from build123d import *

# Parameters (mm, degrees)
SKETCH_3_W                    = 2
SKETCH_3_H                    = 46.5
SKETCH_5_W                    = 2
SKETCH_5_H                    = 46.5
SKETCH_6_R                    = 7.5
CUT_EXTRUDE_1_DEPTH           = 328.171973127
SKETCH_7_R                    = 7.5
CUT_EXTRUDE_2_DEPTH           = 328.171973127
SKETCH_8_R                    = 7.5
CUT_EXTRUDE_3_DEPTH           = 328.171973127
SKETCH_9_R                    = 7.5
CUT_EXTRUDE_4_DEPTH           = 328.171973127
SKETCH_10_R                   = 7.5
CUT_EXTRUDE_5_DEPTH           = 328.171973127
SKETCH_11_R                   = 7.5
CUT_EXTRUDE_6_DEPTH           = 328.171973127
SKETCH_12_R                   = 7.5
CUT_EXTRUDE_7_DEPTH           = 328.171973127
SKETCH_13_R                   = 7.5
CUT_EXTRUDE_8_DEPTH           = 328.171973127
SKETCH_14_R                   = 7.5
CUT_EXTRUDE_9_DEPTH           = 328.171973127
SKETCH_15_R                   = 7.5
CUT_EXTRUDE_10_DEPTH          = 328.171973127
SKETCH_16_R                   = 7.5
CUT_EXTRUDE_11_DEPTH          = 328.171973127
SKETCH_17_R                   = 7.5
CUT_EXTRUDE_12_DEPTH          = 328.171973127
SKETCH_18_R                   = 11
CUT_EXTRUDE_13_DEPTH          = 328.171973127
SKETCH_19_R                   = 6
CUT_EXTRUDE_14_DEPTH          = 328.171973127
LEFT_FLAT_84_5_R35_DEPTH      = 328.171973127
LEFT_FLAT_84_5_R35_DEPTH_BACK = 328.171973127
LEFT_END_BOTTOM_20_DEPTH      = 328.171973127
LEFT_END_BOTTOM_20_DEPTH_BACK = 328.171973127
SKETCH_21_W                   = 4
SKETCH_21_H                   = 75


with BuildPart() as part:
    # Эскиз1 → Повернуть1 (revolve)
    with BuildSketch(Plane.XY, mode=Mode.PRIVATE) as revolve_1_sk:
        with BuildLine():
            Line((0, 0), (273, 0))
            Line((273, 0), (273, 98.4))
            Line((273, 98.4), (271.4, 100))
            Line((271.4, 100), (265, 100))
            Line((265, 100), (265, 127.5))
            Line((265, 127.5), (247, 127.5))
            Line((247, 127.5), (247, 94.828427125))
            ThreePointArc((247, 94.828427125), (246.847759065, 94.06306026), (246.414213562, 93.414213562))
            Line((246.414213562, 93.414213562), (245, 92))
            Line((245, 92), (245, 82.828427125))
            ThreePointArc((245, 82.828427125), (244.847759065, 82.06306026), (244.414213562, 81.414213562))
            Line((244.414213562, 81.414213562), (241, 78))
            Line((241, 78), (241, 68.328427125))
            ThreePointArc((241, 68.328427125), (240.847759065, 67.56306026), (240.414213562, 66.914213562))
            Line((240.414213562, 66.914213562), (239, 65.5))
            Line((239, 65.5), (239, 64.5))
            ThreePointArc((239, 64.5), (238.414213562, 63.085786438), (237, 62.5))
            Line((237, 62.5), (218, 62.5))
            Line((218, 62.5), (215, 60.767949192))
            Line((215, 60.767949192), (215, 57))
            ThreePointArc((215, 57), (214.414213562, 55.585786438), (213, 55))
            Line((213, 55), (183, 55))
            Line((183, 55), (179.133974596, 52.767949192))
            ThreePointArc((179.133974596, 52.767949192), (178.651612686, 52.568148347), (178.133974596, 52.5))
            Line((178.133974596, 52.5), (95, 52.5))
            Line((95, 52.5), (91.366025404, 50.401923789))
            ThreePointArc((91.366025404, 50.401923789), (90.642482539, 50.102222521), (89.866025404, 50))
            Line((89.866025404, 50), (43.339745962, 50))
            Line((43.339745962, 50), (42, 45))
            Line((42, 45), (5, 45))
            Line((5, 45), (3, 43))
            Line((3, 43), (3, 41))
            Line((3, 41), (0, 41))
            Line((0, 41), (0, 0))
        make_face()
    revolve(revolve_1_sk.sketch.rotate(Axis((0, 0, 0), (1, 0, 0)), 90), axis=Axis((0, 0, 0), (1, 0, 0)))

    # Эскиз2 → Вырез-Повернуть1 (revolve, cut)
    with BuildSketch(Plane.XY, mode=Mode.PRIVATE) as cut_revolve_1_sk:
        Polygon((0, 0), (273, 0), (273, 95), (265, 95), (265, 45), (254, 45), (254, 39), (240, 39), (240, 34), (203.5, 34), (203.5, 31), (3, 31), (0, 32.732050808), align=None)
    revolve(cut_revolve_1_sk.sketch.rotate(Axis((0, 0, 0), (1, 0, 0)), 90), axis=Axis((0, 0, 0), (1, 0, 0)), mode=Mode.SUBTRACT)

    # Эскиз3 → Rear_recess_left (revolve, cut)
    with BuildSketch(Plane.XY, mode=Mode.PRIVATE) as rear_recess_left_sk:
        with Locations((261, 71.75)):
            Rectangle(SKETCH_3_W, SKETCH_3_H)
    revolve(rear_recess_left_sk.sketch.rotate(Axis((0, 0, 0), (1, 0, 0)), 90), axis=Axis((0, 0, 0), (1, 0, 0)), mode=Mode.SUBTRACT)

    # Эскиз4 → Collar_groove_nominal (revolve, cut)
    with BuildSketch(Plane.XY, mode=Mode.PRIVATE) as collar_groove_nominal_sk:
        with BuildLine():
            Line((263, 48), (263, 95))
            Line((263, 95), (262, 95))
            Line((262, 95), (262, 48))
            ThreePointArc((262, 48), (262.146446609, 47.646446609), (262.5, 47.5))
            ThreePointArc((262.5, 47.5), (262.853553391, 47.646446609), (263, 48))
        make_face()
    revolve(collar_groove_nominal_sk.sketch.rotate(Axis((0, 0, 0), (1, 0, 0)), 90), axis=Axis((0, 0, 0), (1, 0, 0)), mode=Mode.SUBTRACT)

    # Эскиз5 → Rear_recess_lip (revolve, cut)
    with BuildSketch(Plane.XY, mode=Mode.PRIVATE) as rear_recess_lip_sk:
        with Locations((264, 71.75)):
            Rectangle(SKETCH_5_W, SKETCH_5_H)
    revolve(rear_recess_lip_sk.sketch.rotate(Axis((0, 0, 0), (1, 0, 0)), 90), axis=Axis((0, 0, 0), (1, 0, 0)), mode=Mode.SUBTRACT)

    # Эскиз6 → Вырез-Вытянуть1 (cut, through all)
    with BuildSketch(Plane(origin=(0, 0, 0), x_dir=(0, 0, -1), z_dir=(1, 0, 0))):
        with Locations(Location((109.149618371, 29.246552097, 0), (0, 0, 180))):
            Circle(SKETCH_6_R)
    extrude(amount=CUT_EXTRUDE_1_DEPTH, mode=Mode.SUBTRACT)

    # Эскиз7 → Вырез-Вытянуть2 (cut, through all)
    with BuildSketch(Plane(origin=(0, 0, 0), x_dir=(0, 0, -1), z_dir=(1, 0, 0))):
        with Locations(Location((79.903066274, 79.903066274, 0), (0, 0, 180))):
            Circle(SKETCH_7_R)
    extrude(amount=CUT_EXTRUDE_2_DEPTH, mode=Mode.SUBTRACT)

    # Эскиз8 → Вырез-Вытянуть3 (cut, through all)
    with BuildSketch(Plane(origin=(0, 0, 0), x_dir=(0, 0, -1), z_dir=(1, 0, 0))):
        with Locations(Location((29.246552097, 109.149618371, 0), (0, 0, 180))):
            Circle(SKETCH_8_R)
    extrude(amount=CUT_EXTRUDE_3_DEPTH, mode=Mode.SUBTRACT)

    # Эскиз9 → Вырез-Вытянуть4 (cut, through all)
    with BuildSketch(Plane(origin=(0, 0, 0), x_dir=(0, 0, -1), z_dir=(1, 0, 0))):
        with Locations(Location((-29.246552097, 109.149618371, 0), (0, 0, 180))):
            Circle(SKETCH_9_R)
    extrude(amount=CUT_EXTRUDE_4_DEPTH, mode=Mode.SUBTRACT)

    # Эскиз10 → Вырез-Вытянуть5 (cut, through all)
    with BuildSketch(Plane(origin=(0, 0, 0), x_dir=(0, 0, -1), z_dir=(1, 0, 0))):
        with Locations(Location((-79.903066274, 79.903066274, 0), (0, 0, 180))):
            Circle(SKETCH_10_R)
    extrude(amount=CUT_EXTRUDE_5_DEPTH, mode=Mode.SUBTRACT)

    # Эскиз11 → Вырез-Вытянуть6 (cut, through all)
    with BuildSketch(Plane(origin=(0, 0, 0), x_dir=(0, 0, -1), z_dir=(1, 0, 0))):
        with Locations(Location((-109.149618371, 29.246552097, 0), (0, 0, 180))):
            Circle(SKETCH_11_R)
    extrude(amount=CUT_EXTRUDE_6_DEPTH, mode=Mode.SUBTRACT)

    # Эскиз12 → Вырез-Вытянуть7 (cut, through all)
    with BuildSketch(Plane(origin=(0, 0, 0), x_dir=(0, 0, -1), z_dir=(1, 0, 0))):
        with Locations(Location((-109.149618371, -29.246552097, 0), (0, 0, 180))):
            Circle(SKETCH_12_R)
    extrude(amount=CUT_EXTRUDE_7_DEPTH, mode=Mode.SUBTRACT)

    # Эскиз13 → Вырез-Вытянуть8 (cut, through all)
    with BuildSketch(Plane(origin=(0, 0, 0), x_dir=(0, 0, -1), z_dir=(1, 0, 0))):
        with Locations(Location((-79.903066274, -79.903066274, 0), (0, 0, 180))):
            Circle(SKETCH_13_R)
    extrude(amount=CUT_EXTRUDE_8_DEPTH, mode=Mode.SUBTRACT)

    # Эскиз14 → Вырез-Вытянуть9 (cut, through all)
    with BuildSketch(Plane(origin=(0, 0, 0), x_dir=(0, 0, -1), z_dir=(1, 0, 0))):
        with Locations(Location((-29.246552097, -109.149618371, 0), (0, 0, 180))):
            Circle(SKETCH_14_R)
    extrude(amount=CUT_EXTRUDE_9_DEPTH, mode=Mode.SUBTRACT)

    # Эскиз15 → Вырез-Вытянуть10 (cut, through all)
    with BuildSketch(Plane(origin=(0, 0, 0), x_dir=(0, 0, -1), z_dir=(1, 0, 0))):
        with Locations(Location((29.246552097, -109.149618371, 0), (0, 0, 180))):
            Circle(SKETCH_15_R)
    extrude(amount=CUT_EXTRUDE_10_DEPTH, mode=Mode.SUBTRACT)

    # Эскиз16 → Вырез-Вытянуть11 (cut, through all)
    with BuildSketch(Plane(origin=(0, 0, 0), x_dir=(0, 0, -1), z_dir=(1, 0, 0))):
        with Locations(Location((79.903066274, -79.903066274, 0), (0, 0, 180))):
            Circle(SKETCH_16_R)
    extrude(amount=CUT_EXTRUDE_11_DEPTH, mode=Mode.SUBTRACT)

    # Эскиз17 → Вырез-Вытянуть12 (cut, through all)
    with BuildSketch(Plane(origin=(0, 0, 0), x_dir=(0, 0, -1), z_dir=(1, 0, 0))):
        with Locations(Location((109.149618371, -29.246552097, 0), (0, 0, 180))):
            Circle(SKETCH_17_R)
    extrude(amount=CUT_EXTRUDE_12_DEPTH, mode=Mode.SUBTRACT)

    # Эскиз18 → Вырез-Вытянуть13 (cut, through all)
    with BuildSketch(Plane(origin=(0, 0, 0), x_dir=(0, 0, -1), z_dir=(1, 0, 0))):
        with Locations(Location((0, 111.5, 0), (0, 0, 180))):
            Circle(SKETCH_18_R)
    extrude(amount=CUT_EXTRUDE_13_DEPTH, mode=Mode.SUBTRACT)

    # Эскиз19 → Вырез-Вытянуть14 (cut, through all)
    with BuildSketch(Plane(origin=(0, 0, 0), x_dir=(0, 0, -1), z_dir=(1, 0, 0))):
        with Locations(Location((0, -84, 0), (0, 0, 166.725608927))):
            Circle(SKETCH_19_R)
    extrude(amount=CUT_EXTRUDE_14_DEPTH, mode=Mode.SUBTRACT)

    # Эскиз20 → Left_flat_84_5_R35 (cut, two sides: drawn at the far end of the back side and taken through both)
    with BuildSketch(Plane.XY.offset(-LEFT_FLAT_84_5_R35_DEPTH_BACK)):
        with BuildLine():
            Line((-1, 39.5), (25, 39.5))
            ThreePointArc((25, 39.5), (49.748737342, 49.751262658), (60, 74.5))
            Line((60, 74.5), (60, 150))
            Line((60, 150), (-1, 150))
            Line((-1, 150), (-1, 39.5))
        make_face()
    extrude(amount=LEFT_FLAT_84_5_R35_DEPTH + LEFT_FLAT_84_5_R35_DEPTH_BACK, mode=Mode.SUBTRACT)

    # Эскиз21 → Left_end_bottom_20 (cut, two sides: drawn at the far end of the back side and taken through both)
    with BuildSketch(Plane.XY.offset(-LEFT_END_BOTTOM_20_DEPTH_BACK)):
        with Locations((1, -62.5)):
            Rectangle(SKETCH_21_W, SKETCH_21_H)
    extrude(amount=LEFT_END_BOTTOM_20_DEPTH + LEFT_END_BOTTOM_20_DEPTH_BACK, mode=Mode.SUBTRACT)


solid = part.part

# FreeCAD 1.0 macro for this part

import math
import FreeCAD as App
import Part
import Sketcher

V = App.Vector
Q = App.Units.Quantity

doc = App.newDocument("Part")
body = doc.addObject("PartDesign::Body", "Body")

# Sketch on XY plane
sketch1 = body.newObject("Sketcher::SketchObject", "Sketch")
sketch1.AttachmentSupport = (doc.getObject("XY_Plane"), [""])
sketch1.MapMode = "FlatFace"
sketch1.addGeometry([
    Part.LineSegment(V(0, 0, 0), V(273, 0, 0)),  # 0
    Part.LineSegment(V(273, 0, 0), V(273, 98.4, 0)),  # 1
    Part.LineSegment(V(273, 98.4, 0), V(271.4, 100, 0)),  # 2
    Part.LineSegment(V(271.4, 100, 0), V(265, 100, 0)),  # 3
    Part.LineSegment(V(265, 100, 0), V(265, 127.5, 0)),  # 4
    Part.LineSegment(V(265, 127.5, 0), V(247, 127.5, 0)),  # 5
    Part.LineSegment(V(247, 127.5, 0), V(247, 94.8, 0)),  # 6
    Part.ArcOfCircle(Part.Circle(V(245, 94.8, 0), V(0, 0, 1), 2), math.radians(-45), math.radians(0)),  # 7
    Part.LineSegment(V(246.4, 93.4, 0), V(245, 92, 0)),  # 8
    Part.LineSegment(V(245, 92, 0), V(245, 82.8, 0)),  # 9
    Part.ArcOfCircle(Part.Circle(V(243, 82.8, 0), V(0, 0, 1), 2), math.radians(-45), math.radians(0)),  # 10
    Part.LineSegment(V(244.4, 81.4, 0), V(241, 78, 0)),  # 11
    Part.LineSegment(V(241, 78, 0), V(241, 68.3, 0)),  # 12
    Part.ArcOfCircle(Part.Circle(V(239, 68.3, 0), V(0, 0, 1), 2), math.radians(-45), math.radians(0)),  # 13
    Part.LineSegment(V(240.4, 66.9, 0), V(239, 65.5, 0)),  # 14
    Part.LineSegment(V(239, 65.5, 0), V(239, 64.5, 0)),  # 15
    Part.ArcOfCircle(Part.Circle(V(237, 64.5, 0), V(0, 0, 1), 2), math.radians(-90), math.radians(0)),  # 16
    Part.LineSegment(V(237, 62.5, 0), V(218, 62.5, 0)),  # 17
    Part.LineSegment(V(218, 62.5, 0), V(215, 60.8, 0)),  # 18
    Part.LineSegment(V(215, 60.8, 0), V(215, 57, 0)),  # 19
    Part.ArcOfCircle(Part.Circle(V(213, 57, 0), V(0, 0, 1), 2), math.radians(-90), math.radians(0)),  # 20
    Part.LineSegment(V(213, 55, 0), V(183, 55, 0)),  # 21
    Part.LineSegment(V(183, 55, 0), V(179.1, 52.8, 0)),  # 22
    Part.ArcOfCircle(Part.Circle(V(178.1, 54.5, 0), V(0, 0, 1), 2), math.radians(-90), math.radians(-60)),  # 23
    Part.LineSegment(V(178.1, 52.5, 0), V(95, 52.5, 0)),  # 24
    Part.LineSegment(V(95, 52.5, 0), V(91.4, 50.4, 0)),  # 25
    Part.ArcOfCircle(Part.Circle(V(89.9, 53, 0), V(0, 0, 1), 3), math.radians(-90), math.radians(-60)),  # 26
    Part.LineSegment(V(89.9, 50, 0), V(43.3, 50, 0)),  # 27
    Part.LineSegment(V(43.3, 50, 0), V(42, 45, 0)),  # 28
    Part.LineSegment(V(42, 45, 0), V(5, 45, 0)),  # 29
    Part.LineSegment(V(5, 45, 0), V(3, 43, 0)),  # 30
    Part.LineSegment(V(3, 43, 0), V(3, 41, 0)),  # 31
    Part.LineSegment(V(3, 41, 0), V(0, 41, 0)),  # 32
    Part.LineSegment(V(0, 41, 0), V(0, 0, 0)),  # 33
], False)
sketch1.addConstraint([
    Sketcher.Constraint("Coincident", 0, 2, 1, 1),
    Sketcher.Constraint("Coincident", 1, 2, 2, 1),
    Sketcher.Constraint("Coincident", 2, 2, 3, 1),
    Sketcher.Constraint("Coincident", 3, 2, 4, 1),
    Sketcher.Constraint("Coincident", 4, 2, 5, 1),
    Sketcher.Constraint("Coincident", 5, 2, 6, 1),
    Sketcher.Constraint("Tangent", 6, 2, 7, 2),
    Sketcher.Constraint("Tangent", 7, 1, 8, 1),
    Sketcher.Constraint("Coincident", 8, 2, 9, 1),
    Sketcher.Constraint("Tangent", 9, 2, 10, 2),
    Sketcher.Constraint("Tangent", 10, 1, 11, 1),
    Sketcher.Constraint("Coincident", 11, 2, 12, 1),
    Sketcher.Constraint("Tangent", 12, 2, 13, 2),
    Sketcher.Constraint("Tangent", 13, 1, 14, 1),
    Sketcher.Constraint("Coincident", 14, 2, 15, 1),
    Sketcher.Constraint("Tangent", 15, 2, 16, 2),
    Sketcher.Constraint("Tangent", 16, 1, 17, 1),
    Sketcher.Constraint("Coincident", 17, 2, 18, 1),
    Sketcher.Constraint("Coincident", 18, 2, 19, 1),
    Sketcher.Constraint("Tangent", 19, 2, 20, 2),
    Sketcher.Constraint("Tangent", 20, 1, 21, 1),
    Sketcher.Constraint("Coincident", 21, 2, 22, 1),
    Sketcher.Constraint("Tangent", 22, 2, 23, 2),
    Sketcher.Constraint("Tangent", 23, 1, 24, 1),
    Sketcher.Constraint("Coincident", 24, 2, 25, 1),
    Sketcher.Constraint("Tangent", 25, 2, 26, 2),
    Sketcher.Constraint("Tangent", 26, 1, 27, 1),
    Sketcher.Constraint("Coincident", 27, 2, 28, 1),
    Sketcher.Constraint("Coincident", 28, 2, 29, 1),
    Sketcher.Constraint("Coincident", 29, 2, 30, 1),
    Sketcher.Constraint("Coincident", 30, 2, 31, 1),
    Sketcher.Constraint("Coincident", 31, 2, 32, 1),
    Sketcher.Constraint("Coincident", 32, 2, 33, 1),
    Sketcher.Constraint("Coincident", 33, 2, 0, 1),
    Sketcher.Constraint("Horizontal", 0),
    Sketcher.Constraint("Vertical", 1),
    Sketcher.Constraint("Horizontal", 3),
    Sketcher.Constraint("Vertical", 4),
    Sketcher.Constraint("Horizontal", 5),
    Sketcher.Constraint("Vertical", 6),
    Sketcher.Constraint("Vertical", 9),
    Sketcher.Constraint("Vertical", 12),
    Sketcher.Constraint("Vertical", 15),
    Sketcher.Constraint("Horizontal", 17),
    Sketcher.Constraint("Vertical", 19),
    Sketcher.Constraint("Horizontal", 21),
    Sketcher.Constraint("Horizontal", 24),
    Sketcher.Constraint("Horizontal", 27),
    Sketcher.Constraint("Horizontal", 29),
    Sketcher.Constraint("Vertical", 31),
    Sketcher.Constraint("Horizontal", 32),
    Sketcher.Constraint("Vertical", 33),
    Sketcher.Constraint("Coincident", 33, 2, -1, 1),
    Sketcher.Constraint("Equal", 7, 10),
    Sketcher.Constraint("Equal", 10, 13),
    Sketcher.Constraint("Equal", 13, 16),
    Sketcher.Constraint("Equal", 16, 20),
    Sketcher.Constraint("Equal", 20, 23),
    Sketcher.Constraint("Perpendicular", 2, 8),
    Sketcher.Constraint("Parallel", 8, 11),
    Sketcher.Constraint("Parallel", 11, 14),
    Sketcher.Constraint("Parallel", 18, 22),
    Sketcher.Constraint("Parallel", 22, 25),
    Sketcher.Constraint("Parallel", 14, 30),
    Sketcher.Constraint("Vertical", 7, 3, 8, 2),
    Sketcher.Constraint("Vertical", 13, 3, 14, 2),
    Sketcher.Constraint("Radius", 7, Q("2 mm")),
    Sketcher.Constraint("Radius", 26, Q("3 mm")),
    Sketcher.Constraint("DistanceX", 0, 1, 0, 2, Q("273 mm")),
    Sketcher.Constraint("DistanceX", 5, 2, 5, 1, Q("18 mm")),
    Sketcher.Constraint("DistanceX", 17, 2, 17, 1, Q("19 mm")),
    Sketcher.Constraint("DistanceX", 21, 2, 21, 1, Q("30 mm")),
    Sketcher.Constraint("DistanceX", 29, 2, 29, 1, Q("37 mm")),
    Sketcher.Constraint("DistanceX", 32, 2, 32, 1, Q("3 mm")),
    Sketcher.Constraint("DistanceY", 15, 2, 15, 1, Q("1 mm")),
    Sketcher.Constraint("DistanceY", 31, 2, 31, 1, Q("2 mm")),
    Sketcher.Constraint("DistanceY", 33, 2, 33, 1, Q("41 mm")),
    Sketcher.Constraint("Angle", 2, Q("135 deg")),
    Sketcher.Constraint("Angle", 18, Q("-150 deg")),
    Sketcher.Constraint("Angle", 28, Q("-105 deg")),
    Sketcher.Constraint("DistanceX", 3, 2, 3, 1, Q("6.4 mm")),
    Sketcher.Constraint("DistanceY", 1, 1, 1, 2, Q("98.4 mm")),
    Sketcher.Constraint("DistanceY", 4, 1, 4, 2, Q("27.5 mm")),
    Sketcher.Constraint("DistanceX", -1, 1, 7, 3, Q("245 mm")),
    Sketcher.Constraint("DistanceX", -1, 1, 13, 3, Q("239 mm")),
    Sketcher.Constraint("DistanceX", -1, 1, 20, 3, Q("213 mm")),
    Sketcher.Constraint("DistanceY", -1, 1, 20, 3, Q("57 mm")),
    Sketcher.Constraint("DistanceY", -1, 1, 26, 3, Q("53 mm")),
    Sketcher.Constraint("DistanceY", -1, 1, 8, 2, Q("92 mm")),
    Sketcher.Constraint("DistanceY", -1, 1, 11, 2, Q("78 mm")),
    Sketcher.Constraint("DistanceX", -1, 1, 24, 2, Q("95 mm")),
    Sketcher.Constraint("DistanceX", -1, 1, 28, 2, Q("42 mm")),
    Sketcher.Constraint("DistanceY", 23, 3, 16, 3, Q("10 mm")),
    Sketcher.Constraint("DistanceY", -1, 1, 16, 3, Q("64.5 mm")),
])
revolution = body.newObject("PartDesign::Revolution", "Revolution")
revolution.Profile = sketch1
revolution.ReferenceAxis = (sketch1, ["H_Axis"])
revolution.Angle = 360

# Sketch on XY plane
sketch2 = body.newObject("Sketcher::SketchObject", "Sketch001")
sketch2.AttachmentSupport = (doc.getObject("XY_Plane"), [""])
sketch2.MapMode = "FlatFace"
sketch2.addGeometry([
    Part.LineSegment(V(0, 0, 0), V(273, 0, 0)),  # 0
    Part.LineSegment(V(273, 0, 0), V(273, 95, 0)),  # 1
    Part.LineSegment(V(273, 95, 0), V(265, 95, 0)),  # 2
    Part.LineSegment(V(265, 95, 0), V(265, 45, 0)),  # 3
    Part.LineSegment(V(265, 45, 0), V(254, 45, 0)),  # 4
    Part.LineSegment(V(254, 45, 0), V(254, 39, 0)),  # 5
    Part.LineSegment(V(254, 39, 0), V(240, 39, 0)),  # 6
    Part.LineSegment(V(240, 39, 0), V(240, 34, 0)),  # 7
    Part.LineSegment(V(240, 34, 0), V(203.5, 34, 0)),  # 8
    Part.LineSegment(V(203.5, 34, 0), V(203.5, 31, 0)),  # 9
    Part.LineSegment(V(203.5, 31, 0), V(3, 31, 0)),  # 10
    Part.LineSegment(V(3, 31, 0), V(0, 32.7, 0)),  # 11
    Part.LineSegment(V(0, 32.7, 0), V(0, 0, 0)),  # 12
], False)
sketch2.addConstraint([
    Sketcher.Constraint("Coincident", 0, 2, 1, 1),
    Sketcher.Constraint("Coincident", 1, 2, 2, 1),
    Sketcher.Constraint("Coincident", 2, 2, 3, 1),
    Sketcher.Constraint("Coincident", 3, 2, 4, 1),
    Sketcher.Constraint("Coincident", 4, 2, 5, 1),
    Sketcher.Constraint("Coincident", 5, 2, 6, 1),
    Sketcher.Constraint("Coincident", 6, 2, 7, 1),
    Sketcher.Constraint("Coincident", 7, 2, 8, 1),
    Sketcher.Constraint("Coincident", 8, 2, 9, 1),
    Sketcher.Constraint("Coincident", 9, 2, 10, 1),
    Sketcher.Constraint("Coincident", 10, 2, 11, 1),
    Sketcher.Constraint("Coincident", 11, 2, 12, 1),
    Sketcher.Constraint("Coincident", 12, 2, 0, 1),
    Sketcher.Constraint("Horizontal", 0),
    Sketcher.Constraint("Vertical", 1),
    Sketcher.Constraint("Horizontal", 2),
    Sketcher.Constraint("Vertical", 3),
    Sketcher.Constraint("Horizontal", 4),
    Sketcher.Constraint("Vertical", 5),
    Sketcher.Constraint("Horizontal", 6),
    Sketcher.Constraint("Vertical", 7),
    Sketcher.Constraint("Horizontal", 8),
    Sketcher.Constraint("Vertical", 9),
    Sketcher.Constraint("Horizontal", 10),
    Sketcher.Constraint("Vertical", 12),
    Sketcher.Constraint("Coincident", 12, 2, -1, 1),
    Sketcher.Constraint("DistanceX", 0, 1, 0, 2, Q("273 mm")),
    Sketcher.Constraint("DistanceX", 2, 2, 2, 1, Q("8 mm")),
    Sketcher.Constraint("DistanceX", 4, 2, 4, 1, Q("11 mm")),
    Sketcher.Constraint("DistanceX", 6, 2, 6, 1, Q("14 mm")),
    Sketcher.Constraint("DistanceY", 1, 1, 1, 2, Q("95 mm")),
    Sketcher.Constraint("DistanceY", 3, 2, 3, 1, Q("50 mm")),
    Sketcher.Constraint("DistanceY", 5, 2, 5, 1, Q("6 mm")),
    Sketcher.Constraint("DistanceY", 7, 2, 7, 1, Q("5 mm")),
    Sketcher.Constraint("DistanceY", 9, 2, 9, 1, Q("3 mm")),
    Sketcher.Constraint("Angle", 11, Q("150 deg")),
    Sketcher.Constraint("DistanceX", 8, 2, 8, 1, Q("36.5 mm")),
    Sketcher.Constraint("DistanceX", 10, 2, 10, 1, Q("200.5 mm")),
])
groove = body.newObject("PartDesign::Groove", "Groove")
groove.Profile = sketch2
groove.ReferenceAxis = (sketch2, ["H_Axis"])
groove.Angle = 360

# Sketch on XY plane
sketch3 = body.newObject("Sketcher::SketchObject", "Sketch002")
sketch3.AttachmentSupport = (doc.getObject("XY_Plane"), [""])
sketch3.MapMode = "FlatFace"
sketch3.addGeometry([
    Part.LineSegment(V(260, 95, 0), V(260, 48.5, 0)),
    Part.LineSegment(V(260, 48.5, 0), V(262, 48.5, 0)),
    Part.LineSegment(V(262, 48.5, 0), V(262, 95, 0)),
    Part.LineSegment(V(262, 95, 0), V(260, 95, 0)),
], False)
sketch3.addConstraint([
    Sketcher.Constraint("Coincident", 0, 2, 1, 1),
    Sketcher.Constraint("Coincident", 1, 2, 2, 1),
    Sketcher.Constraint("Coincident", 2, 2, 3, 1),
    Sketcher.Constraint("Coincident", 3, 2, 0, 1),
    Sketcher.Constraint("Vertical", 0),
    Sketcher.Constraint("Horizontal", 1),
    Sketcher.Constraint("Vertical", 2),
    Sketcher.Constraint("Horizontal", 3),
    Sketcher.Constraint("DistanceX", 1, 1, 1, 2, Q("2 mm")),
    Sketcher.Constraint("DistanceY", 0, 2, 0, 1, Q("46.5 mm")),
    Sketcher.Constraint("DistanceX", -1, 1, 0, 2, Q("260 mm")),
    Sketcher.Constraint("DistanceY", -1, 1, 2, 2, Q("95 mm")),
])
groove2 = body.newObject("PartDesign::Groove", "Groove001")
groove2.Profile = sketch3
groove2.ReferenceAxis = (sketch3, ["H_Axis"])
groove2.Angle = 360

# Sketch on XY plane
sketch4 = body.newObject("Sketcher::SketchObject", "Sketch003")
sketch4.AttachmentSupport = (doc.getObject("XY_Plane"), [""])
sketch4.MapMode = "FlatFace"
sketch4.addGeometry([
    Part.LineSegment(V(263, 48, 0), V(263, 95, 0)),  # 0
    Part.LineSegment(V(263, 95, 0), V(262, 95, 0)),  # 1
    Part.LineSegment(V(262, 95, 0), V(262, 48, 0)),  # 2
    Part.ArcOfCircle(Part.Circle(V(262.5, 48, 0), V(0, 0, 1), 0.5), math.radians(180), math.radians(270)),  # 3
    Part.ArcOfCircle(Part.Circle(V(262.5, 48, 0), V(0, 0, 1), 0.5), math.radians(-90), math.radians(0)),  # 4
], False)
sketch4.addConstraint([
    Sketcher.Constraint("Coincident", 0, 2, 1, 1),
    Sketcher.Constraint("Coincident", 1, 2, 2, 1),
    Sketcher.Constraint("Tangent", 2, 2, 3, 1),
    Sketcher.Constraint("Tangent", 3, 2, 4, 1),
    Sketcher.Constraint("Tangent", 4, 2, 0, 1),
    Sketcher.Constraint("Vertical", 0),
    Sketcher.Constraint("Horizontal", 1),
    Sketcher.Constraint("Vertical", 2),
    Sketcher.Constraint("Equal", 3, 4),
    Sketcher.Constraint("Vertical", 4, 3, 3, 2),
    Sketcher.Constraint("Radius", 3, Q("0.5 mm")),
    Sketcher.Constraint("DistanceY", 0, 1, 0, 2, Q("47 mm")),
    Sketcher.Constraint("DistanceY", -1, 1, 3, 3, Q("48 mm")),
    Sketcher.Constraint("DistanceX", -1, 1, 0, 2, Q("263 mm")),
])
groove3 = body.newObject("PartDesign::Groove", "Groove002")
groove3.Profile = sketch4
groove3.ReferenceAxis = (sketch4, ["H_Axis"])
groove3.Angle = 360

# Sketch on XY plane
sketch5 = body.newObject("Sketcher::SketchObject", "Sketch004")
sketch5.AttachmentSupport = (doc.getObject("XY_Plane"), [""])
sketch5.MapMode = "FlatFace"
sketch5.addGeometry([
    Part.LineSegment(V(263, 95, 0), V(263, 48.5, 0)),
    Part.LineSegment(V(263, 48.5, 0), V(265, 48.5, 0)),
    Part.LineSegment(V(265, 48.5, 0), V(265, 95, 0)),
    Part.LineSegment(V(265, 95, 0), V(263, 95, 0)),
], False)
sketch5.addConstraint([
    Sketcher.Constraint("Coincident", 0, 2, 1, 1),
    Sketcher.Constraint("Coincident", 1, 2, 2, 1),
    Sketcher.Constraint("Coincident", 2, 2, 3, 1),
    Sketcher.Constraint("Coincident", 3, 2, 0, 1),
    Sketcher.Constraint("Vertical", 0),
    Sketcher.Constraint("Horizontal", 1),
    Sketcher.Constraint("Vertical", 2),
    Sketcher.Constraint("Horizontal", 3),
    Sketcher.Constraint("DistanceX", 1, 1, 1, 2, Q("2 mm")),
    Sketcher.Constraint("DistanceY", 0, 2, 0, 1, Q("46.5 mm")),
    Sketcher.Constraint("DistanceX", -1, 1, 0, 2, Q("263 mm")),
    Sketcher.Constraint("DistanceY", -1, 1, 2, 2, Q("95 mm")),
])
groove4 = body.newObject("PartDesign::Groove", "Groove003")
groove4.Profile = sketch5
groove4.ReferenceAxis = (sketch5, ["H_Axis"])
groove4.Angle = 360

# Sketch on YZ plane
sketch6 = body.newObject("Sketcher::SketchObject", "Sketch005")
sketch6.AttachmentSupport = (doc.getObject("YZ_Plane"), [""])
sketch6.MapMode = "FlatFace"
sketch6.addGeometry(Part.Circle(V(29, -109, 0), V(0, 0, 1), 8), False)
sketch6.addConstraint([
    Sketcher.Constraint("Diameter", 0, Q("15 mm")),
    Sketcher.Constraint("DistanceY", 0, 3, -1, 1, Q("109.149618 mm")),
    Sketcher.Constraint("DistanceX", -1, 1, 0, 3, Q("29.246552 mm")),
])
pocket1 = body.newObject("PartDesign::Pocket", "Pocket")
pocket1.Profile = sketch6
pocket1.Type = "ThroughAll"
pocket1.Reversed = True

# Sketch on YZ plane
sketch7 = body.newObject("Sketcher::SketchObject", "Sketch006")
sketch7.AttachmentSupport = (doc.getObject("YZ_Plane"), [""])
sketch7.MapMode = "FlatFace"
sketch7.addGeometry(Part.Circle(V(80, -80, 0), V(0, 0, 1), 8), False)
sketch7.addConstraint([
    Sketcher.Constraint("Diameter", 0, Q("15 mm")),
    Sketcher.Constraint("DistanceX", -1, 1, 0, 3, Q("79.903066 mm")),
    Sketcher.Constraint("DistanceY", 0, 3, -1, 1, Q("79.903066 mm")),
])
pocket2 = body.newObject("PartDesign::Pocket", "Pocket001")
pocket2.Profile = sketch7
pocket2.Type = "ThroughAll"
pocket2.Reversed = True

# Sketch on YZ plane
sketch8 = body.newObject("Sketcher::SketchObject", "Sketch007")
sketch8.AttachmentSupport = (doc.getObject("YZ_Plane"), [""])
sketch8.MapMode = "FlatFace"
sketch8.addGeometry(Part.Circle(V(109, -29, 0), V(0, 0, 1), 8), False)
sketch8.addConstraint([
    Sketcher.Constraint("Diameter", 0, Q("15 mm")),
    Sketcher.Constraint("DistanceX", -1, 1, 0, 3, Q("109.149618 mm")),
    Sketcher.Constraint("DistanceY", 0, 3, -1, 1, Q("29.246552 mm")),
])
pocket3 = body.newObject("PartDesign::Pocket", "Pocket002")
pocket3.Profile = sketch8
pocket3.Type = "ThroughAll"
pocket3.Reversed = True

# Sketch on YZ plane
sketch9 = body.newObject("Sketcher::SketchObject", "Sketch008")
sketch9.AttachmentSupport = (doc.getObject("YZ_Plane"), [""])
sketch9.MapMode = "FlatFace"
sketch9.addGeometry(Part.Circle(V(109, 29, 0), V(0, 0, 1), 8), False)
sketch9.addConstraint([
    Sketcher.Constraint("Diameter", 0, Q("15 mm")),
    Sketcher.Constraint("DistanceX", -1, 1, 0, 3, Q("109.149618 mm")),
    Sketcher.Constraint("DistanceY", -1, 1, 0, 3, Q("29.246552 mm")),
])
pocket4 = body.newObject("PartDesign::Pocket", "Pocket003")
pocket4.Profile = sketch9
pocket4.Type = "ThroughAll"
pocket4.Reversed = True

# Sketch on YZ plane
sketch10 = body.newObject("Sketcher::SketchObject", "Sketch009")
sketch10.AttachmentSupport = (doc.getObject("YZ_Plane"), [""])
sketch10.MapMode = "FlatFace"
sketch10.addGeometry(Part.Circle(V(80, 80, 0), V(0, 0, 1), 8), False)
sketch10.addConstraint([
    Sketcher.Constraint("Diameter", 0, Q("15 mm")),
    Sketcher.Constraint("DistanceX", -1, 1, 0, 3, Q("79.903066 mm")),
    Sketcher.Constraint("DistanceY", -1, 1, 0, 3, Q("79.903066 mm")),
])
pocket5 = body.newObject("PartDesign::Pocket", "Pocket004")
pocket5.Profile = sketch10
pocket5.Type = "ThroughAll"
pocket5.Reversed = True

# Sketch on YZ plane
sketch11 = body.newObject("Sketcher::SketchObject", "Sketch010")
sketch11.AttachmentSupport = (doc.getObject("YZ_Plane"), [""])
sketch11.MapMode = "FlatFace"
sketch11.addGeometry(Part.Circle(V(29, 109, 0), V(0, 0, 1), 8), False)
sketch11.addConstraint([
    Sketcher.Constraint("Diameter", 0, Q("15 mm")),
    Sketcher.Constraint("DistanceY", -1, 1, 0, 3, Q("109.149618 mm")),
    Sketcher.Constraint("DistanceX", -1, 1, 0, 3, Q("29.246552 mm")),
])
pocket6 = body.newObject("PartDesign::Pocket", "Pocket005")
pocket6.Profile = sketch11
pocket6.Type = "ThroughAll"
pocket6.Reversed = True

# Sketch on YZ plane
sketch12 = body.newObject("Sketcher::SketchObject", "Sketch011")
sketch12.AttachmentSupport = (doc.getObject("YZ_Plane"), [""])
sketch12.MapMode = "FlatFace"
sketch12.addGeometry(Part.Circle(V(-29, 109, 0), V(0, 0, 1), 8), False)
sketch12.addConstraint([
    Sketcher.Constraint("Diameter", 0, Q("15 mm")),
    Sketcher.Constraint("DistanceY", -1, 1, 0, 3, Q("109.149618 mm")),
    Sketcher.Constraint("DistanceX", 0, 3, -1, 1, Q("29.246552 mm")),
])
pocket7 = body.newObject("PartDesign::Pocket", "Pocket006")
pocket7.Profile = sketch12
pocket7.Type = "ThroughAll"
pocket7.Reversed = True

# Sketch on YZ plane
sketch13 = body.newObject("Sketcher::SketchObject", "Sketch012")
sketch13.AttachmentSupport = (doc.getObject("YZ_Plane"), [""])
sketch13.MapMode = "FlatFace"
sketch13.addGeometry(Part.Circle(V(-80, 80, 0), V(0, 0, 1), 8), False)
sketch13.addConstraint([
    Sketcher.Constraint("Diameter", 0, Q("15 mm")),
    Sketcher.Constraint("DistanceX", 0, 3, -1, 1, Q("79.903066 mm")),
    Sketcher.Constraint("DistanceY", -1, 1, 0, 3, Q("79.903066 mm")),
])
pocket8 = body.newObject("PartDesign::Pocket", "Pocket007")
pocket8.Profile = sketch13
pocket8.Type = "ThroughAll"
pocket8.Reversed = True

# Sketch on YZ plane
sketch14 = body.newObject("Sketcher::SketchObject", "Sketch013")
sketch14.AttachmentSupport = (doc.getObject("YZ_Plane"), [""])
sketch14.MapMode = "FlatFace"
sketch14.addGeometry(Part.Circle(V(-109, 29, 0), V(0, 0, 1), 8), False)
sketch14.addConstraint([
    Sketcher.Constraint("Diameter", 0, Q("15 mm")),
    Sketcher.Constraint("DistanceX", 0, 3, -1, 1, Q("109.149618 mm")),
    Sketcher.Constraint("DistanceY", -1, 1, 0, 3, Q("29.246552 mm")),
])
pocket9 = body.newObject("PartDesign::Pocket", "Pocket008")
pocket9.Profile = sketch14
pocket9.Type = "ThroughAll"
pocket9.Reversed = True

# Sketch on YZ plane
sketch15 = body.newObject("Sketcher::SketchObject", "Sketch014")
sketch15.AttachmentSupport = (doc.getObject("YZ_Plane"), [""])
sketch15.MapMode = "FlatFace"
sketch15.addGeometry(Part.Circle(V(-109, -29, 0), V(0, 0, 1), 8), False)
sketch15.addConstraint([
    Sketcher.Constraint("Diameter", 0, Q("15 mm")),
    Sketcher.Constraint("DistanceX", 0, 3, -1, 1, Q("109.149618 mm")),
    Sketcher.Constraint("DistanceY", 0, 3, -1, 1, Q("29.246552 mm")),
])
pocket10 = body.newObject("PartDesign::Pocket", "Pocket009")
pocket10.Profile = sketch15
pocket10.Type = "ThroughAll"
pocket10.Reversed = True

# Sketch on YZ plane
sketch16 = body.newObject("Sketcher::SketchObject", "Sketch015")
sketch16.AttachmentSupport = (doc.getObject("YZ_Plane"), [""])
sketch16.MapMode = "FlatFace"
sketch16.addGeometry(Part.Circle(V(-80, -80, 0), V(0, 0, 1), 8), False)
sketch16.addConstraint([
    Sketcher.Constraint("Diameter", 0, Q("15 mm")),
    Sketcher.Constraint("DistanceX", 0, 3, -1, 1, Q("79.903066 mm")),
    Sketcher.Constraint("DistanceY", 0, 3, -1, 1, Q("79.903066 mm")),
])
pocket11 = body.newObject("PartDesign::Pocket", "Pocket010")
pocket11.Profile = sketch16
pocket11.Type = "ThroughAll"
pocket11.Reversed = True

# Sketch on YZ plane
sketch17 = body.newObject("Sketcher::SketchObject", "Sketch016")
sketch17.AttachmentSupport = (doc.getObject("YZ_Plane"), [""])
sketch17.MapMode = "FlatFace"
sketch17.addGeometry(Part.Circle(V(-29, -109, 0), V(0, 0, 1), 8), False)
sketch17.addConstraint([
    Sketcher.Constraint("Diameter", 0, Q("15 mm")),
    Sketcher.Constraint("DistanceY", 0, 3, -1, 1, Q("109.149618 mm")),
    Sketcher.Constraint("DistanceX", 0, 3, -1, 1, Q("29.246552 mm")),
])
pocket12 = body.newObject("PartDesign::Pocket", "Pocket011")
pocket12.Profile = sketch17
pocket12.Type = "ThroughAll"
pocket12.Reversed = True

# Sketch on YZ plane
sketch18 = body.newObject("Sketcher::SketchObject", "Sketch017")
sketch18.AttachmentSupport = (doc.getObject("YZ_Plane"), [""])
sketch18.MapMode = "FlatFace"
sketch18.addGeometry(Part.Circle(V(112, 0, 0), V(0, 0, 1), 11), False)
sketch18.addConstraint([
    Sketcher.Constraint("PointOnObject", 0, 3, -1),
    Sketcher.Constraint("Diameter", 0, Q("22 mm")),
    Sketcher.Constraint("DistanceX", -1, 1, 0, 3, Q("111.5 mm")),
])
pocket13 = body.newObject("PartDesign::Pocket", "Pocket012")
pocket13.Profile = sketch18
pocket13.Type = "ThroughAll"
pocket13.Reversed = True

# Sketch on YZ plane
sketch19 = body.newObject("Sketcher::SketchObject", "Sketch018")
sketch19.AttachmentSupport = (doc.getObject("YZ_Plane"), [""])
sketch19.MapMode = "FlatFace"
sketch19.addGeometry(Part.Circle(V(-84, 0, 0), V(0, 0, 1), 6), False)
sketch19.addConstraint([
    Sketcher.Constraint("PointOnObject", 0, 3, -1),
    Sketcher.Constraint("Diameter", 0, Q("12 mm")),
    Sketcher.Constraint("DistanceX", 0, 3, -1, 1, Q("84 mm")),
])
pocket14 = body.newObject("PartDesign::Pocket", "Pocket013")
pocket14.Profile = sketch19
pocket14.Type = "ThroughAll"
pocket14.Reversed = True

# Sketch on XY plane
sketch20 = body.newObject("Sketcher::SketchObject", "Sketch019")
sketch20.AttachmentSupport = (doc.getObject("XY_Plane"), [""])
sketch20.MapMode = "FlatFace"
sketch20.addGeometry([
    Part.LineSegment(V(-1, 40, 0), V(25, 40, 0)),  # 0
    Part.ArcOfCircle(Part.Circle(V(25, 74, 0), V(0, 0, 1), 35), math.radians(-90), math.radians(0)),  # 1
    Part.LineSegment(V(60, 74, 0), V(60, 150, 0)),  # 2
    Part.LineSegment(V(60, 150, 0), V(-1, 150, 0)),  # 3
    Part.LineSegment(V(-1, 150, 0), V(-1, 40, 0)),  # 4
], False)
sketch20.addConstraint([
    Sketcher.Constraint("Tangent", 0, 2, 1, 1),
    Sketcher.Constraint("Tangent", 1, 2, 2, 1),
    Sketcher.Constraint("Coincident", 2, 2, 3, 1),
    Sketcher.Constraint("Coincident", 3, 2, 4, 1),
    Sketcher.Constraint("Coincident", 4, 2, 0, 1),
    Sketcher.Constraint("Horizontal", 0),
    Sketcher.Constraint("Vertical", 2),
    Sketcher.Constraint("Horizontal", 3),
    Sketcher.Constraint("Vertical", 4),
    Sketcher.Constraint("Radius", 1, Q("35 mm")),
    Sketcher.Constraint("DistanceX", 0, 1, 0, 2, Q("26 mm")),
    Sketcher.Constraint("DistanceY", 2, 1, 2, 2, Q("75.5 mm")),
    Sketcher.Constraint("DistanceX", -1, 1, 1, 3, Q("25 mm")),
    Sketcher.Constraint("DistanceY", -1, 1, 2, 2, Q("150 mm")),
])
pocket15 = body.newObject("PartDesign::Pocket", "Pocket014")
pocket15.Profile = sketch20
pocket15.Type = "ThroughAll"
pocket15.Midplane = True

# Sketch on XY plane
sketch21 = body.newObject("Sketcher::SketchObject", "Sketch020")
sketch21.AttachmentSupport = (doc.getObject("XY_Plane"), [""])
sketch21.MapMode = "FlatFace"
sketch21.addGeometry([
    Part.LineSegment(V(-1, -25, 0), V(-1, -100, 0)),
    Part.LineSegment(V(-1, -100, 0), V(3, -100, 0)),
    Part.LineSegment(V(3, -100, 0), V(3, -25, 0)),
    Part.LineSegment(V(3, -25, 0), V(-1, -25, 0)),
], False)
sketch21.addConstraint([
    Sketcher.Constraint("Coincident", 0, 2, 1, 1),
    Sketcher.Constraint("Coincident", 1, 2, 2, 1),
    Sketcher.Constraint("Coincident", 2, 2, 3, 1),
    Sketcher.Constraint("Coincident", 3, 2, 0, 1),
    Sketcher.Constraint("Vertical", 0),
    Sketcher.Constraint("Horizontal", 1),
    Sketcher.Constraint("Vertical", 2),
    Sketcher.Constraint("Horizontal", 3),
    Sketcher.Constraint("DistanceX", 1, 1, 1, 2, Q("4 mm")),
    Sketcher.Constraint("DistanceY", 0, 2, 0, 1, Q("75 mm")),
    Sketcher.Constraint("DistanceX", 0, 2, -1, 1, Q("1 mm")),
    Sketcher.Constraint("DistanceY", 0, 2, -1, 1, Q("100 mm")),
])
pocket16 = body.newObject("PartDesign::Pocket", "Pocket015")
pocket16.Profile = sketch21
pocket16.Type = "ThroughAll"
pocket16.Midplane = True

doc.recompute()
